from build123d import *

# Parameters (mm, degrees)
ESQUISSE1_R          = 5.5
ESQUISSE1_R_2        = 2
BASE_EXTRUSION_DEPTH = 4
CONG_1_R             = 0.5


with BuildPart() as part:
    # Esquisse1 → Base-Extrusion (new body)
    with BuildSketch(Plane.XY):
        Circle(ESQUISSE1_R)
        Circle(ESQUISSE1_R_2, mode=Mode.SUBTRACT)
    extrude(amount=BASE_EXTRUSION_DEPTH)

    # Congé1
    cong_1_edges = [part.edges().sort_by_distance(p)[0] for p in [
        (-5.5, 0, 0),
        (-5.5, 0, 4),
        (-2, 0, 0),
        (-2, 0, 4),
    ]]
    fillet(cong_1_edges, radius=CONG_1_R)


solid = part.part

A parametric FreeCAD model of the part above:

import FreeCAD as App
import Part
import Sketcher
Q = App.Units.Quantity


def edges_at(feature, points):
    """Names of the edges that pass closest to the given points."""
    edges = feature.Shape.Edges
    near = lambda p: min(range(len(edges)), key=lambda i: edges[i].distToShape(Part.Vertex(*p))[0])
    return sorted({f"Edge{near(p) + 1}" for p in points})

doc = App.newDocument("Part")
body = doc.addObject("PartDesign::Body", "Body")

# Sketch on XY plane
sketch1 = doc.addObject("Sketcher::SketchObject", "Sketch")
body.addObject(sketch1)
sketch1.AttachmentSupport = (doc.XY_Plane, [""])
sketch1.MapMode = "FlatFace"
sketch1.addGeometry(Part.Circle(App.Vector(0, 0, 0), App.Vector(0, 0, 1), 5.5), False)
sketch1.addGeometry(Part.Circle(App.Vector(0, 0, 0), App.Vector(0, 0, 1), 2), False)
sketch1.addConstraint(Sketcher.Constraint("Coincident", 0, 3, -1, 1))
sketch1.addConstraint(Sketcher.Constraint("Coincident", 1, 3, -1, 1))
sketch1.addConstraint(Sketcher.Constraint("Diameter", 0, Q("11 mm")))
sketch1.addConstraint(Sketcher.Constraint("Diameter", 1, Q("4 mm")))
pad1 = doc.addObject("PartDesign::Pad", "Pad")
body.addObject(pad1)
pad1.Profile = sketch1
pad1.Length = 4
doc.recompute()

fillet = doc.addObject("PartDesign::Fillet", "Fillet")
body.addObject(fillet)
fillet.Base = (pad1, edges_at(pad1, [
    (-5.5, 0, 0),
    (-5.5, 0, 4),
    (-2, 0, 0),
    (-2, 0, 4),
]))
fillet.Radius = 0.5

doc.recompute()
